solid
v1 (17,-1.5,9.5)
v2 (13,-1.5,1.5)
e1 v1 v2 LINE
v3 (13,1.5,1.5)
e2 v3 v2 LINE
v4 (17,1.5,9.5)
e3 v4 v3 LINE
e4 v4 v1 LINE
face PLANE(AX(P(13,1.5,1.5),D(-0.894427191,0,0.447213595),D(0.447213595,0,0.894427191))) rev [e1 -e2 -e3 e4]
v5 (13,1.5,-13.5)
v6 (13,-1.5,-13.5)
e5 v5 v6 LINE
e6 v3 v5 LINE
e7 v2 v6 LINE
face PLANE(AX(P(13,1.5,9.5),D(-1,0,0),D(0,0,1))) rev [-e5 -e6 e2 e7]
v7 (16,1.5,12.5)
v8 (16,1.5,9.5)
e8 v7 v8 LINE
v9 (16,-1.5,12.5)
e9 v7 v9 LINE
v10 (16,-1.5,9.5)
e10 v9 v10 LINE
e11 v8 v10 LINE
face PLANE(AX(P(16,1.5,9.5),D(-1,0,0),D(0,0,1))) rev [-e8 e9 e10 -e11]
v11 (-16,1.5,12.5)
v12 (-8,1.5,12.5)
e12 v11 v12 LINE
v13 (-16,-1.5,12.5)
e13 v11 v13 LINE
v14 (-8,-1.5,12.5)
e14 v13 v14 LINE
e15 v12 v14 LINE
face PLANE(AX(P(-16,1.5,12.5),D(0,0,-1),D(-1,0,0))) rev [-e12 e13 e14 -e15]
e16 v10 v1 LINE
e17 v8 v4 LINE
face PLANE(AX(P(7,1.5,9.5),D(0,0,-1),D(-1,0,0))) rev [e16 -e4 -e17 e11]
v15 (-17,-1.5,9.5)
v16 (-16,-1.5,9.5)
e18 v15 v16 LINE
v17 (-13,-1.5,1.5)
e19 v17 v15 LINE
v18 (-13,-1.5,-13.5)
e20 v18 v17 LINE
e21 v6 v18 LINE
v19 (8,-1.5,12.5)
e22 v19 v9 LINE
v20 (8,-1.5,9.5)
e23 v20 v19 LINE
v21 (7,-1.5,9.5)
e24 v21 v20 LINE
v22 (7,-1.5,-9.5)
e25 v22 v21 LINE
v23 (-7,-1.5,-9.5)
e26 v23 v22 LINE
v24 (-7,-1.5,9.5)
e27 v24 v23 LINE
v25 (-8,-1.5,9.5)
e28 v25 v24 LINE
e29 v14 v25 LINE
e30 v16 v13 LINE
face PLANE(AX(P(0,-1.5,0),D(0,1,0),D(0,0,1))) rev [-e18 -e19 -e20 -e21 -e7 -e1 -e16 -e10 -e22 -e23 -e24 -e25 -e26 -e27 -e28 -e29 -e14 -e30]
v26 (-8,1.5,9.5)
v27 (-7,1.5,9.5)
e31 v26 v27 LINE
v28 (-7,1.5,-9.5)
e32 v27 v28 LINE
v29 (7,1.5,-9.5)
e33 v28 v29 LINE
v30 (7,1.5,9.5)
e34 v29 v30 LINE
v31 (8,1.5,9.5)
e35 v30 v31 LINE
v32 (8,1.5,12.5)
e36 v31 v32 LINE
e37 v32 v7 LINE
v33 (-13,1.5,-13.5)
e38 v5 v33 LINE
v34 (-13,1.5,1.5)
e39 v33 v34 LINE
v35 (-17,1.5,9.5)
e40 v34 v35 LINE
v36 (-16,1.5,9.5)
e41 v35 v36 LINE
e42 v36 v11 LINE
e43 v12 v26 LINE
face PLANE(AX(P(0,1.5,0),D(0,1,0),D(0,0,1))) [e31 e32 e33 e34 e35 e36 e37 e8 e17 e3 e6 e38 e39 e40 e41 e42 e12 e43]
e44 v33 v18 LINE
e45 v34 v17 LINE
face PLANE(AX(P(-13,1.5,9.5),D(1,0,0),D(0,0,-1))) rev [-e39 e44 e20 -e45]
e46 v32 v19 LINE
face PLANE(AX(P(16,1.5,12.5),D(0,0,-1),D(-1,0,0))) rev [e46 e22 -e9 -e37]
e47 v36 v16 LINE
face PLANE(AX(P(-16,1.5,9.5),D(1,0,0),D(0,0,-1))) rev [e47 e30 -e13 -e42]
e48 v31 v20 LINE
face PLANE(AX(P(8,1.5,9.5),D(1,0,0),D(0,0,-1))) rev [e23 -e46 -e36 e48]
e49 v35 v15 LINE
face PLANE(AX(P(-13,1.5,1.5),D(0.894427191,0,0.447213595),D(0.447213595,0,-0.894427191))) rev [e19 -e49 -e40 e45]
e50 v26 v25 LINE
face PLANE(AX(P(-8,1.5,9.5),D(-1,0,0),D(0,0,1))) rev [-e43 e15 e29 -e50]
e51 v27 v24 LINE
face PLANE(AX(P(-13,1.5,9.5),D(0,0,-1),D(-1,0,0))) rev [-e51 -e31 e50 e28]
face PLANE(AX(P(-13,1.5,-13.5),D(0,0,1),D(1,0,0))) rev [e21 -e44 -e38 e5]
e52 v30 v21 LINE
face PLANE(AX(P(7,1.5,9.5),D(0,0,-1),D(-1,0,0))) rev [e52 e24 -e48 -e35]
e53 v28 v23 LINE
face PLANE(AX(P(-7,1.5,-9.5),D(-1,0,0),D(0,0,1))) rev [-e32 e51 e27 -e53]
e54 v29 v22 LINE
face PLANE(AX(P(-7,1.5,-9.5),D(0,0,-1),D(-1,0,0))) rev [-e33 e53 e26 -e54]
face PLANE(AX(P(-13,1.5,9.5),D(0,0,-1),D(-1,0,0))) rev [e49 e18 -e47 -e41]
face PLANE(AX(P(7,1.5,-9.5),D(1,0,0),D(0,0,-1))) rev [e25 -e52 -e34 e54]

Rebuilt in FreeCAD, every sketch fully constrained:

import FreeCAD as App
import Part
import Sketcher
from FreeCAD import Vector

doc = App.newDocument("Part")
body = doc.addObject("PartDesign::Body", "Body")

# Sketch on XZ plane
sketch1 = body.newObject("Sketcher::SketchObject", "Sketch")
sketch1.AttachmentSupport = (doc.getObject("XZ_Plane"), [""])
sketch1.MapMode = "FlatFace"
sketch1.addGeometry(Part.LineSegment(Vector(7, 10, 0), Vector(13, 10, 0)), False)
sketch1.addGeometry(Part.LineSegment(Vector(13, 10, 0), Vector(13, -14, 0)), False)
sketch1.addGeometry(Part.LineSegment(Vector(13, -14, 0), Vector(-13, -14, 0)), False)
sketch1.addGeometry(Part.LineSegment(Vector(-13, -14, 0), Vector(-13, 10, 0)), False)
sketch1.addGeometry(Part.LineSegment(Vector(-13, 10, 0), Vector(-7, 10, 0)), False)
sketch1.addGeometry(Part.LineSegment(Vector(-7, 10, 0), Vector(-7, -10, 0)), False)
sketch1.addGeometry(Part.LineSegment(Vector(-7, -10, 0), Vector(7, -10, 0)), False)
sketch1.addGeometry(Part.LineSegment(Vector(7, -10, 0), Vector(7, 10, 0)), False)
sketch1.addConstraint(Sketcher.Constraint("Coincident", 0, 2, 1, 1))
sketch1.addConstraint(Sketcher.Constraint("Coincident", 1, 2, 2, 1))
sketch1.addConstraint(Sketcher.Constraint("Coincident", 2, 2, 3, 1))
sketch1.addConstraint(Sketcher.Constraint("Coincident", 3, 2, 4, 1))
sketch1.addConstraint(Sketcher.Constraint("Coincident", 4, 2, 5, 1))
sketch1.addConstraint(Sketcher.Constraint("Coincident", 5, 2, 6, 1))
sketch1.addConstraint(Sketcher.Constraint("Coincident", 6, 2, 7, 1))
sketch1.addConstraint(Sketcher.Constraint("Coincident", 7, 2, 0, 1))
sketch1.addConstraint(Sketcher.Constraint("Horizontal", 0))
sketch1.addConstraint(Sketcher.Constraint("Vertical", 1))
sketch1.addConstraint(Sketcher.Constraint("Horizontal", 2))
sketch1.addConstraint(Sketcher.Constraint("Vertical", 3))
sketch1.addConstraint(Sketcher.Constraint("Horizontal", 4))
sketch1.addConstraint(Sketcher.Constraint("Vertical", 5))
sketch1.addConstraint(Sketcher.Constraint("Horizontal", 6))
sketch1.addConstraint(Sketcher.Constraint("Vertical", 7))
sketch1.addConstraint(Sketcher.Constraint("Symmetric", 4, 2, 6, 2, -1, 1))
sketch1.addConstraint(Sketcher.Constraint("Symmetric", 0, 2, 3, 2, -2))
sketch1.addConstraint(Sketcher.Constraint("DistanceX", 0, 1, 0, 2, 6.0))
sketch1.addConstraint(Sketcher.Constraint("DistanceX", 2, 2, 2, 1, 26.0))
sketch1.addConstraint(Sketcher.Constraint("DistanceY", 1, 2, 1, 1, 23.0))
sketch1.addConstraint(Sketcher.Constraint("DistanceY", 5, 2, 5, 1, 19.0))
pad1 = body.newObject("PartDesign::Pad", "Pad")
pad1.Profile = sketch1
pad1.Length = 3
pad1.Midplane = True

# Sketch on XZ plane
sketch2 = body.newObject("Sketcher::SketchObject", "Sketch001")
sketch2.AttachmentSupport = (doc.getObject("XZ_Plane"), [""])
sketch2.MapMode = "FlatFace"
sketch2.addGeometry(Part.LineSegment(Vector(-13, 1.5, 0), Vector(-17, 9.5, 0)), False)
sketch2.addGeometry(Part.LineSegment(Vector(-17, 9.5, 0), Vector(-13, 9.5, 0)), False)
sketch2.addGeometry(Part.LineSegment(Vector(-13, 9.5, 0), Vector(-13, 1.5, 0)), False)
sketch2.addGeometry(Part.LineSegment(Vector(13, 1.5, 0), Vector(13, 9.5, 0)), False)
sketch2.addGeometry(Part.LineSegment(Vector(13, 9.5, 0), Vector(17, 9.5, 0)), False)
sketch2.addGeometry(Part.LineSegment(Vector(17, 9.5, 0), Vector(13, 1.5, 0)), False)
sketch2.addConstraint(Sketcher.Constraint("Coincident", 0, 2, 1, 1))
sketch2.addConstraint(Sketcher.Constraint("Coincident", 1, 2, 2, 1))
sketch2.addConstraint(Sketcher.Constraint("Coincident", 2, 2, 0, 1))
sketch2.addConstraint(Sketcher.Constraint("Coincident", 3, 2, 4, 1))
sketch2.addConstraint(Sketcher.Constraint("Coincident", 4, 2, 5, 1))
sketch2.addConstraint(Sketcher.Constraint("Coincident", 5, 2, 3, 1))
sketch2.addConstraint(Sketcher.Constraint("Horizontal", 1))
sketch2.addConstraint(Sketcher.Constraint("Vertical", 2))
sketch2.addConstraint(Sketcher.Constraint("Vertical", 3))
sketch2.addConstraint(Sketcher.Constraint("Horizontal", 4))
sketch2.addConstraint(Sketcher.Constraint("Symmetric", 1, 2, 3, 2, -2))
sketch2.addConstraint(Sketcher.Constraint("Horizontal", 2, 2, 5, 2))
sketch2.addConstraint(Sketcher.Constraint("Equal", 1, 4))
sketch2.addConstraint(Sketcher.Constraint("DistanceX", 1, 1, 1, 2, 4.0))
sketch2.addConstraint(Sketcher.Constraint("DistanceY", 2, 2, 2, 1, 8.0))
sketch2.addConstraint(Sketcher.Constraint("DistanceX", 0, 2, -1, 1, 17.0))
sketch2.addConstraint(Sketcher.Constraint("DistanceY", -1, 1, 0, 2, 9.5))
pad2 = body.newObject("PartDesign::Pad", "Pad001")
pad2.Profile = sketch2
pad2.Length = 3
pad2.Midplane = True

# Sketch on XZ plane
sketch3 = body.newObject("Sketcher::SketchObject", "Sketch002")
sketch3.AttachmentSupport = (doc.getObject("XZ_Plane"), [""])
sketch3.MapMode = "FlatFace"
sketch3.addGeometry(Part.LineSegment(Vector(-16, 9.5, 0), Vector(-16, 12.5, 0)), False)
sketch3.addGeometry(Part.LineSegment(Vector(-16, 12.5, 0), Vector(-8, 12.5, 0)), False)
sketch3.addGeometry(Part.LineSegment(Vector(-8, 12.5, 0), Vector(-8, 9.5, 0)), False)
sketch3.addGeometry(Part.LineSegment(Vector(-8, 9.5, 0), Vector(-16, 9.5, 0)), False)
sketch3.addGeometry(Part.LineSegment(Vector(8, 9.5, 0), Vector(8, 12.5, 0)), False)
sketch3.addGeometry(Part.LineSegment(Vector(8, 12.5, 0), Vector(16, 12.5, 0)), False)
sketch3.addGeometry(Part.LineSegment(Vector(16, 12.5, 0), Vector(16, 9.5, 0)), False)
sketch3.addGeometry(Part.LineSegment(Vector(16, 9.5, 0), Vector(8, 9.5, 0)), False)
sketch3.addConstraint(Sketcher.Constraint("Coincident", 0, 2, 1, 1))
sketch3.addConstraint(Sketcher.Constraint("Coincident", 1, 2, 2, 1))
sketch3.addConstraint(Sketcher.Constraint("Coincident", 2, 2, 3, 1))
sketch3.addConstraint(Sketcher.Constraint("Coincident", 3, 2, 0, 1))
sketch3.addConstraint(Sketcher.Constraint("Coincident", 4, 2, 5, 1))
sketch3.addConstraint(Sketcher.Constraint("Coincident", 5, 2, 6, 1))
sketch3.addConstraint(Sketcher.Constraint("Coincident", 6, 2, 7, 1))
sketch3.addConstraint(Sketcher.Constraint("Coincident", 7, 2, 4, 1))
sketch3.addConstraint(Sketcher.Constraint("Vertical", 0))
sketch3.addConstraint(Sketcher.Constraint("Horizontal", 1))
sketch3.addConstraint(Sketcher.Constraint("Vertical", 2))
sketch3.addConstraint(Sketcher.Constraint("Horizontal", 3))
sketch3.addConstraint(Sketcher.Constraint("Vertical", 4))
sketch3.addConstraint(Sketcher.Constraint("Horizontal", 5))
sketch3.addConstraint(Sketcher.Constraint("Vertical", 6))
sketch3.addConstraint(Sketcher.Constraint("Horizontal", 7))
sketch3.addConstraint(Sketcher.Constraint("Symmetric", 1, 2, 4, 2, -2))
sketch3.addConstraint(Sketcher.Constraint("Symmetric", 3, 2, 6, 2, -2))
sketch3.addConstraint(Sketcher.Constraint("DistanceX", 1, 1, 1, 2, 8.0))
sketch3.addConstraint(Sketcher.Constraint("DistanceY", 0, 1, 0, 2, 3.0))
sketch3.addConstraint(Sketcher.Constraint("DistanceX", 0, 2, -1, 1, 16.0))
sketch3.addConstraint(Sketcher.Constraint("DistanceY", -1, 1, 0, 2, 12.5))
pad3 = body.newObject("PartDesign::Pad", "Pad002")
pad3.Profile = sketch3
pad3.Length = 3
pad3.Midplane = True

doc.recompute()
